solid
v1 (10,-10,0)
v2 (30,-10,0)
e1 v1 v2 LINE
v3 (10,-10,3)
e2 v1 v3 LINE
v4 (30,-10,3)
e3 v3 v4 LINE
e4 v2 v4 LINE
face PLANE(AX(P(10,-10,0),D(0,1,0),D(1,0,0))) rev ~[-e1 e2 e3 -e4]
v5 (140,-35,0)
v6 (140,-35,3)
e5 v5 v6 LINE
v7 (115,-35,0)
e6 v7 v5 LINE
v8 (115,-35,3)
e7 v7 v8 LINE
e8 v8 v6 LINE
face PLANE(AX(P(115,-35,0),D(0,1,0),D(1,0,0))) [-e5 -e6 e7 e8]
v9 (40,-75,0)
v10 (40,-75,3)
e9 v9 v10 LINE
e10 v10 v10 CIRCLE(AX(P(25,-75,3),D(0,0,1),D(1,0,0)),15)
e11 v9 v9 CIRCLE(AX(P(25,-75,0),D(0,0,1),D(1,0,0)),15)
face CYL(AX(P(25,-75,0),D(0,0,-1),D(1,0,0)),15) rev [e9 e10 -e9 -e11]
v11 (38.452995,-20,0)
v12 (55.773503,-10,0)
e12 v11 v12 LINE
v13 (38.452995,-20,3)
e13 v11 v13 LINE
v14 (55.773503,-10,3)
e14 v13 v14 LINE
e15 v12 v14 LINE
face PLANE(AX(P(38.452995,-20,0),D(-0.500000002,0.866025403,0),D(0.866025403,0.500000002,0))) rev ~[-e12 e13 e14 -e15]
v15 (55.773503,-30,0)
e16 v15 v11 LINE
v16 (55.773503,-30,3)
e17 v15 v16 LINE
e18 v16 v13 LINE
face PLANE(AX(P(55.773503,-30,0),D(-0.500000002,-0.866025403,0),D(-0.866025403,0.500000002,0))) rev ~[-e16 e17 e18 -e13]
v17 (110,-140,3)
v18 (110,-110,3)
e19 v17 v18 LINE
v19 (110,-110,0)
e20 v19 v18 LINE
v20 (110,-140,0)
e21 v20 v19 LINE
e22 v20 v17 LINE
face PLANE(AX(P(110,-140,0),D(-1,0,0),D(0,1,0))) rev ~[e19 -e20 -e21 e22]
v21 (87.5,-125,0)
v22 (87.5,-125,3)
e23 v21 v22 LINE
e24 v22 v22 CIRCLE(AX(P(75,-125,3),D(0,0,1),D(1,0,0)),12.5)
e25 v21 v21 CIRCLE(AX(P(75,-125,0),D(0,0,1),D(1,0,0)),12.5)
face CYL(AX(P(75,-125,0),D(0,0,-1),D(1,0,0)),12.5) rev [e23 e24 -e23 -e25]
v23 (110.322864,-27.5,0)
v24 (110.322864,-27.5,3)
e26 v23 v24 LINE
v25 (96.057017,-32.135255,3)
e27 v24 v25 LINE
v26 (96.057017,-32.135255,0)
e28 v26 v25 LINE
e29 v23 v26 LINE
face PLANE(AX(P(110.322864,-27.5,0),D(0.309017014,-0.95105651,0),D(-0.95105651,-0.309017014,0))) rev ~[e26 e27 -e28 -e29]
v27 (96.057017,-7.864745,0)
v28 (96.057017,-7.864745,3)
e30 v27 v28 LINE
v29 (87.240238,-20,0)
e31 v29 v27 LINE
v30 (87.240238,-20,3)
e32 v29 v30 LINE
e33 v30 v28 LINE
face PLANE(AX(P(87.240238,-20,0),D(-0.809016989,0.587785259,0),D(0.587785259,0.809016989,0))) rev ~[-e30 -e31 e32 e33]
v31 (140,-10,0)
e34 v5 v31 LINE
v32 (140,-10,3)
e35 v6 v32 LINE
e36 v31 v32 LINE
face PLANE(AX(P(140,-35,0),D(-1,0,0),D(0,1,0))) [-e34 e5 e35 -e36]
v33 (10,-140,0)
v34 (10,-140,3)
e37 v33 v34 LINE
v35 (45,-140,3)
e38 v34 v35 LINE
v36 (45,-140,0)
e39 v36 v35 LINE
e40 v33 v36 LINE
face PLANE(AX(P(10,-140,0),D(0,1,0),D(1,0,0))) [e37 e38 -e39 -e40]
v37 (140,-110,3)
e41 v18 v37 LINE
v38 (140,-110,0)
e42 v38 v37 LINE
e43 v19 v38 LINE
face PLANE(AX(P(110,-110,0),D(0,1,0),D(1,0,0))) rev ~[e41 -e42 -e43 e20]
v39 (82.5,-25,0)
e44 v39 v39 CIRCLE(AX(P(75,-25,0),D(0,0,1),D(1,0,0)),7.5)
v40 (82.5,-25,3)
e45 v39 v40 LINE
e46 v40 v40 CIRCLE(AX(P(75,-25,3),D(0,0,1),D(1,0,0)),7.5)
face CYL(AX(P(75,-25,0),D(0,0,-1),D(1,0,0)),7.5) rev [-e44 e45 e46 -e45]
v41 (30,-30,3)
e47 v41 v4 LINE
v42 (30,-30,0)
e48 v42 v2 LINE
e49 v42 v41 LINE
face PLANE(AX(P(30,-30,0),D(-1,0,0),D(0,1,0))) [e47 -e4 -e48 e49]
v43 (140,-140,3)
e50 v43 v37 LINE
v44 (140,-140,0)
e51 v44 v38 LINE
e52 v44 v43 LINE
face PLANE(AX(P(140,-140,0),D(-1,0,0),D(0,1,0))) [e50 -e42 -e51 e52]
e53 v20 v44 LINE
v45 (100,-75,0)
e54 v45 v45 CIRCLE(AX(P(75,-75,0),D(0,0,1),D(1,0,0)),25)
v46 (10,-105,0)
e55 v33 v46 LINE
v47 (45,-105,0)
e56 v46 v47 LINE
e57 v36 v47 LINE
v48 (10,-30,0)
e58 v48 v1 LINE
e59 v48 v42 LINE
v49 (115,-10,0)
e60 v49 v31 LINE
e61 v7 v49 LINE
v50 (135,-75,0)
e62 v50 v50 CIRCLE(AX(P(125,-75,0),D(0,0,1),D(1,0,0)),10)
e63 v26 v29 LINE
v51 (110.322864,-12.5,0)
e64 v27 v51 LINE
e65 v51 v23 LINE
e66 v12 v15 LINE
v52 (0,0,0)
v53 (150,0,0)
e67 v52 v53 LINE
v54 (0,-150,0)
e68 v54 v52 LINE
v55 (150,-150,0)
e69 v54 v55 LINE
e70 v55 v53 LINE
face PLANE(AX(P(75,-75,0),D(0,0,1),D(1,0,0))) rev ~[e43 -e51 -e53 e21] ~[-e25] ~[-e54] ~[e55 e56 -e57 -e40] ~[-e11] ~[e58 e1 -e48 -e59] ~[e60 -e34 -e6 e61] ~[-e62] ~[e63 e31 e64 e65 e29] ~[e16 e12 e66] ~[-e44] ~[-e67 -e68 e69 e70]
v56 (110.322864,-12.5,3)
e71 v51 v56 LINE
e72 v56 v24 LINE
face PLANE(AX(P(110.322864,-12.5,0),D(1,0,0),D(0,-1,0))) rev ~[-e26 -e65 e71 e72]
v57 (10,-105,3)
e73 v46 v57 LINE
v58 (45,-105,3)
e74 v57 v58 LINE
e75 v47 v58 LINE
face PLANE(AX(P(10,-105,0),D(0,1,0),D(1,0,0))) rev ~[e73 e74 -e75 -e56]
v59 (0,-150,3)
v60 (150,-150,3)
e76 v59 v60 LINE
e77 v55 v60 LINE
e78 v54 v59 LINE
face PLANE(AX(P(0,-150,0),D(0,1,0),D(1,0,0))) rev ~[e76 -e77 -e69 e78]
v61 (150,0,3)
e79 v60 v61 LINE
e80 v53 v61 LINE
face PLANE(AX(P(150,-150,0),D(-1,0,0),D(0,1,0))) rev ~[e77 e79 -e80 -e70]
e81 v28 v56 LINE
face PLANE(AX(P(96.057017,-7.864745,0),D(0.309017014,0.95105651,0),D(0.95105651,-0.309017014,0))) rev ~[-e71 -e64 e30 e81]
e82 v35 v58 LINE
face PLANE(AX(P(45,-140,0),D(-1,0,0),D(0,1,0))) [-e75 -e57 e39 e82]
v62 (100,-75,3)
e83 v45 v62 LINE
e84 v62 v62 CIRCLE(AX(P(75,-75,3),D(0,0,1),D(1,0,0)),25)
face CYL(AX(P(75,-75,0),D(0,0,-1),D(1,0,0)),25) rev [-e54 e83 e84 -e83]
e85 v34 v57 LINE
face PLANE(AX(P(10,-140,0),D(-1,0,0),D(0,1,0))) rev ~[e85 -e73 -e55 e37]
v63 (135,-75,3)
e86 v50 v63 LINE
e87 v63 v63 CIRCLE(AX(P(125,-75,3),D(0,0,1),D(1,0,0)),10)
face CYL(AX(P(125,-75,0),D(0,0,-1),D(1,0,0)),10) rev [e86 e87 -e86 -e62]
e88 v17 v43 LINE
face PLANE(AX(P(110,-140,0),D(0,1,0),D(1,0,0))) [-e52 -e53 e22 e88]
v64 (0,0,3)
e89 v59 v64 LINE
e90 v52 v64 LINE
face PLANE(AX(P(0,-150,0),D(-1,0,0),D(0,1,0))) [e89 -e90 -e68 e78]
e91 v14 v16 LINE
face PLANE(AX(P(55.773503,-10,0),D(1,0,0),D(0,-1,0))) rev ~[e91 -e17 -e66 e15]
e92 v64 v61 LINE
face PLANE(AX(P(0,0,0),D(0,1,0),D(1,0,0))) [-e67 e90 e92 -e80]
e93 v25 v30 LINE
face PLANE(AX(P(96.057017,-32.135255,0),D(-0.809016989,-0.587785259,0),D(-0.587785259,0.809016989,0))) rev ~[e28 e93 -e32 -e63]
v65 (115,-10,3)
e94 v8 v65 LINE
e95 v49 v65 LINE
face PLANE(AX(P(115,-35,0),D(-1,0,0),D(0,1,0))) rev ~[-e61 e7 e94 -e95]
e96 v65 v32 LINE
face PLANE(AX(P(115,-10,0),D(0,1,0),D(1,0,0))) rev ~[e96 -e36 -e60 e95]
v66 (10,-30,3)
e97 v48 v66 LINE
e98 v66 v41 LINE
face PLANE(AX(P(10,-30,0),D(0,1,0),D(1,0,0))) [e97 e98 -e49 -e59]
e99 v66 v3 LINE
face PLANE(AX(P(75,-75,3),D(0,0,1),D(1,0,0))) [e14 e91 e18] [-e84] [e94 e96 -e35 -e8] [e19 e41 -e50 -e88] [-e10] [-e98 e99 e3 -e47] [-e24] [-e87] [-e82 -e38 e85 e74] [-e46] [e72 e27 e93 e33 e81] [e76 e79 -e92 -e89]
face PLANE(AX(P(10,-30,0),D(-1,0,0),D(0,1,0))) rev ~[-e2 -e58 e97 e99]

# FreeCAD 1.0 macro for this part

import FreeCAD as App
import Part
import Sketcher

V = App.Vector
Q = App.Units.Quantity

doc = App.newDocument("Part")
params = doc.addObject("Spreadsheet::Sheet", "Params")
for row, (alias, value) in enumerate([
    ("sketch1_diameter", "30 mm"),
    ("sketch1_diameter2", "25 mm"),
    ("sketch1_diameter3", "50 mm"),
    ("sketch1_diameter4", "20 mm"),
    ("sketch1_diameter5", "15 mm"),
    ("pad1_length", "3 mm"),
], start=1):
    params.set(f"A{row}", alias)
    params.set(f"B{row}", "=" + value)
    params.setAlias(f"B{row}", alias)

body = doc.addObject("PartDesign::Body", "Body")

# Sketch on XY plane
sketch1 = doc.addObject("Sketcher::SketchObject", "Sketch")
body.addObject(sketch1)
sketch1.AttachmentSupport = (doc.XY_Plane, [""])
sketch1.MapMode = "FlatFace"
sketch1.addGeometry(Part.LineSegment(V(0, 0, 0), V(0, -150, 0)), False)
sketch1.addGeometry(Part.LineSegment(V(0, -150, 0), V(150, -150, 0)), False)
sketch1.addGeometry(Part.LineSegment(V(150, -150, 0), V(150, 0, 0)), False)
sketch1.addGeometry(Part.LineSegment(V(150, 0, 0), V(0, 0, 0)), False)
sketch1.addGeometry(Part.LineSegment(V(45, -140, 0), V(10, -140, 0)), False)
sketch1.addGeometry(Part.LineSegment(V(10, -140, 0), V(10, -105, 0)), False)
sketch1.addGeometry(Part.LineSegment(V(10, -105, 0), V(45, -105, 0)), False)
sketch1.addGeometry(Part.LineSegment(V(45, -105, 0), V(45, -140, 0)), False)
sketch1.addGeometry(Part.Circle(V(25, -75, 0), V(0, 0, 1), 15), False)
sketch1.addGeometry(Part.Circle(V(75, -125, 0), V(0, 0, 1), 12), False)
sketch1.addGeometry(Part.LineSegment(V(140, -140, 0), V(110, -140, 0)), False)
sketch1.addGeometry(Part.LineSegment(V(110, -140, 0), V(110, -110, 0)), False)
sketch1.addGeometry(Part.LineSegment(V(110, -110, 0), V(140, -110, 0)), False)
sketch1.addGeometry(Part.LineSegment(V(140, -110, 0), V(140, -140, 0)), False)
sketch1.addGeometry(Part.Circle(V(75, -75, 0), V(0, 0, 1), 25), False)
sketch1.addGeometry(Part.Circle(V(125, -75, 0), V(0, 0, 1), 10), False)
sketch1.addGeometry(Part.LineSegment(V(30, -30, 0), V(10, -30, 0)), False)
sketch1.addGeometry(Part.LineSegment(V(10, -30, 0), V(10, -10, 0)), False)
sketch1.addGeometry(Part.LineSegment(V(10, -10, 0), V(30, -10, 0)), False)
sketch1.addGeometry(Part.LineSegment(V(30, -10, 0), V(30, -30, 0)), False)
sketch1.addGeometry(Part.LineSegment(V(56, -30, 0), V(38, -20, 0)), False)
sketch1.addGeometry(Part.LineSegment(V(38, -20, 0), V(56, -10, 0)), False)
sketch1.addGeometry(Part.LineSegment(V(56, -10, 0), V(56, -30, 0)), False)
sketch1.addGeometry(Part.Circle(V(75, -25, 0), V(0, 0, 1), 8), False)
sketch1.addGeometry(Part.LineSegment(V(87, -20, 0), V(96, -8, 0)), False)
sketch1.addGeometry(Part.LineSegment(V(96, -8, 0), V(110, -12, 0)), False)
sketch1.addGeometry(Part.LineSegment(V(110, -12, 0), V(110, -28, 0)), False)
sketch1.addGeometry(Part.LineSegment(V(110, -28, 0), V(96, -32, 0)), False)
sketch1.addGeometry(Part.LineSegment(V(96, -32, 0), V(87, -20, 0)), False)
sketch1.addGeometry(Part.LineSegment(V(140, -35, 0), V(115, -35, 0)), False)
sketch1.addGeometry(Part.LineSegment(V(115, -35, 0), V(115, -10, 0)), False)
sketch1.addGeometry(Part.LineSegment(V(115, -10, 0), V(140, -10, 0)), False)
sketch1.addGeometry(Part.LineSegment(V(140, -10, 0), V(140, -35, 0)), False)
sketch1.addConstraint(Sketcher.Constraint("Coincident", 0, 2, 1, 1))
sketch1.addConstraint(Sketcher.Constraint("Coincident", 1, 2, 2, 1))
sketch1.addConstraint(Sketcher.Constraint("Coincident", 2, 2, 3, 1))
sketch1.addConstraint(Sketcher.Constraint("Coincident", 3, 2, 0, 1))
sketch1.addConstraint(Sketcher.Constraint("Coincident", 4, 2, 5, 1))
sketch1.addConstraint(Sketcher.Constraint("Coincident", 5, 2, 6, 1))
sketch1.addConstraint(Sketcher.Constraint("Coincident", 6, 2, 7, 1))
sketch1.addConstraint(Sketcher.Constraint("Coincident", 7, 2, 4, 1))
sketch1.addConstraint(Sketcher.Constraint("Coincident", 10, 2, 11, 1))
sketch1.addConstraint(Sketcher.Constraint("Coincident", 11, 2, 12, 1))
sketch1.addConstraint(Sketcher.Constraint("Coincident", 12, 2, 13, 1))
sketch1.addConstraint(Sketcher.Constraint("Coincident", 13, 2, 10, 1))
sketch1.addConstraint(Sketcher.Constraint("Coincident", 16, 2, 17, 1))
sketch1.addConstraint(Sketcher.Constraint("Coincident", 17, 2, 18, 1))
sketch1.addConstraint(Sketcher.Constraint("Coincident", 18, 2, 19, 1))
sketch1.addConstraint(Sketcher.Constraint("Coincident", 19, 2, 16, 1))
sketch1.addConstraint(Sketcher.Constraint("Coincident", 20, 2, 21, 1))
sketch1.addConstraint(Sketcher.Constraint("Coincident", 21, 2, 22, 1))
sketch1.addConstraint(Sketcher.Constraint("Coincident", 22, 2, 20, 1))
sketch1.addConstraint(Sketcher.Constraint("Coincident", 24, 2, 25, 1))
sketch1.addConstraint(Sketcher.Constraint("Coincident", 25, 2, 26, 1))
sketch1.addConstraint(Sketcher.Constraint("Coincident", 26, 2, 27, 1))
sketch1.addConstraint(Sketcher.Constraint("Coincident", 27, 2, 28, 1))
sketch1.addConstraint(Sketcher.Constraint("Coincident", 28, 2, 24, 1))
sketch1.addConstraint(Sketcher.Constraint("Coincident", 29, 2, 30, 1))
sketch1.addConstraint(Sketcher.Constraint("Coincident", 30, 2, 31, 1))
sketch1.addConstraint(Sketcher.Constraint("Coincident", 31, 2, 32, 1))
sketch1.addConstraint(Sketcher.Constraint("Coincident", 32, 2, 29, 1))
sketch1.addConstraint(Sketcher.Constraint("Vertical", 0))
sketch1.addConstraint(Sketcher.Constraint("Horizontal", 1))
sketch1.addConstraint(Sketcher.Constraint("Vertical", 2))
sketch1.addConstraint(Sketcher.Constraint("Horizontal", 3))
sketch1.addConstraint(Sketcher.Constraint("Horizontal", 4))
sketch1.addConstraint(Sketcher.Constraint("Vertical", 5))
sketch1.addConstraint(Sketcher.Constraint("Horizontal", 6))
sketch1.addConstraint(Sketcher.Constraint("Vertical", 7))
sketch1.addConstraint(Sketcher.Constraint("Horizontal", 10))
sketch1.addConstraint(Sketcher.Constraint("Vertical", 11))
sketch1.addConstraint(Sketcher.Constraint("Horizontal", 12))
sketch1.addConstraint(Sketcher.Constraint("Vertical", 13))
sketch1.addConstraint(Sketcher.Constraint("Horizontal", 16))
sketch1.addConstraint(Sketcher.Constraint("Vertical", 17))
sketch1.addConstraint(Sketcher.Constraint("Horizontal", 18))
sketch1.addConstraint(Sketcher.Constraint("Vertical", 19))
sketch1.addConstraint(Sketcher.Constraint("Vertical", 22))
sketch1.addConstraint(Sketcher.Constraint("Vertical", 26))
sketch1.addConstraint(Sketcher.Constraint("Horizontal", 29))
sketch1.addConstraint(Sketcher.Constraint("Vertical", 30))
sketch1.addConstraint(Sketcher.Constraint("Horizontal", 31))
sketch1.addConstraint(Sketcher.Constraint("Vertical", 32))
sketch1.addConstraint(Sketcher.Constraint("Coincident", 3, 2, -1, 1))
sketch1.addConstraint(Sketcher.Constraint("Horizontal", 8, 3, 14, 3))
sketch1.addConstraint(Sketcher.Constraint("Horizontal", 14, 3, 15, 3))
sketch1.addConstraint(Sketcher.Constraint("Horizontal", 7, 2, 10, 2))
sketch1.addConstraint(Sketcher.Constraint("Horizontal", 18, 2, 21, 2))
sketch1.addConstraint(Sketcher.Constraint("Horizontal", 19, 2, 22, 2))
sketch1.addConstraint(Sketcher.Constraint("Horizontal", 20, 2, 28, 2))
sketch1.addConstraint(Sketcher.Constraint("Horizontal", 21, 2, 30, 2))
sketch1.addConstraint(Sketcher.Constraint("Vertical", 9, 3, 14, 3))
sketch1.addConstraint(Sketcher.Constraint("Vertical", 14, 3, 23, 3))
sketch1.addConstraint(Sketcher.Constraint("Vertical", 5, 2, 16, 2))
sketch1.addConstraint(Sketcher.Constraint("Vertical", 24, 2, 27, 2))
sketch1.addConstraint(Sketcher.Constraint("Vertical", 13, 2, 31, 2))
sketch1.addConstraint(Sketcher.Constraint("Equal", 3, 0))
sketch1.addConstraint(Sketcher.Constraint("Equal", 6, 5))
sketch1.addConstraint(Sketcher.Constraint("Equal", 12, 11))
sketch1.addConstraint(Sketcher.Constraint("Equal", 18, 17))
sketch1.addConstraint(Sketcher.Constraint("Equal", 31, 30))
sketch1.addConstraint(Sketcher.Constraint("Equal", 20, 21))
sketch1.addConstraint(Sketcher.Constraint("Equal", 24, 25))
sketch1.addConstraint(Sketcher.Constraint("Equal", 25, 27))
sketch1.addConstraint(Sketcher.Constraint("Equal", 27, 28))
sketch1.addConstraint(Sketcher.Constraint("Diameter", 8, Q("30 mm")))
sketch1.addConstraint(Sketcher.Constraint("Diameter", 9, Q("25 mm")))
sketch1.addConstraint(Sketcher.Constraint("Diameter", 14, Q("50 mm")))
sketch1.addConstraint(Sketcher.Constraint("Diameter", 15, Q("20 mm")))
sketch1.addConstraint(Sketcher.Constraint("Diameter", 23, Q("15 mm")))
sketch1.addConstraint(Sketcher.Constraint("DistanceX", 1, 1, 1, 2, Q("150 mm")))
sketch1.addConstraint(Sketcher.Constraint("DistanceX", 4, 2, 4, 1, Q("35 mm")))
sketch1.addConstraint(Sketcher.Constraint("DistanceX", 10, 2, 10, 1, Q("30 mm")))
sketch1.addConstraint(Sketcher.Constraint("DistanceX", 16, 2, 16, 1, Q("20 mm")))
sketch1.addConstraint(Sketcher.Constraint("DistanceX", 29, 2, 29, 1, Q("25 mm")))
sketch1.addConstraint(Sketcher.Constraint("DistanceY", 26, 2, 26, 1, Q("15 mm")))
sketch1.addConstraint(Sketcher.Constraint("Angle", 20, Q("150 deg")))
sketch1.addConstraint(Sketcher.Constraint("Angle", 24, Q("54 deg")))
sketch1.addConstraint(Sketcher.Constraint("Angle", 25, Q("-18.000001 deg")))
sketch1.addConstraint(Sketcher.Constraint("DistanceX", -1, 1, 8, 3, Q("25 mm")))
sketch1.addConstraint(Sketcher.Constraint("DistanceY", 8, 3, -1, 1, Q("75 mm")))
sketch1.addConstraint(Sketcher.Constraint("DistanceX", -1, 1, 9, 3, Q("75 mm")))
sketch1.addConstraint(Sketcher.Constraint("DistanceY", 9, 3, -1, 1, Q("125 mm")))
sketch1.addConstraint(Sketcher.Constraint("DistanceX", -1, 1, 15, 3, Q("125 mm")))
sketch1.addConstraint(Sketcher.Constraint("DistanceY", 23, 3, -1, 1, Q("25 mm")))
sketch1.addConstraint(Sketcher.Constraint("DistanceX", -1, 1, 4, 2, Q("10 mm")))
sketch1.addConstraint(Sketcher.Constraint("DistanceY", 4, 2, -1, 1, Q("140 mm")))
sketch1.addConstraint(Sketcher.Constraint("DistanceX", -1, 1, 10, 2, Q("110 mm")))
sketch1.addConstraint(Sketcher.Constraint("DistanceY", 16, 2, -1, 1, Q("30 mm")))
sketch1.addConstraint(Sketcher.Constraint("DistanceX", -1, 1, 28, 2, Q("87.240238 mm")))
sketch1.addConstraint(Sketcher.Constraint("DistanceX", 21, 2, 25, 2, Q("54.549361 mm")))
sketch1.setExpression("Constraints[72]", "Params.sketch1_diameter")
sketch1.setExpression("Constraints[73]", "Params.sketch1_diameter2")
sketch1.setExpression("Constraints[74]", "Params.sketch1_diameter3")
sketch1.setExpression("Constraints[75]", "Params.sketch1_diameter4")
sketch1.setExpression("Constraints[76]", "Params.sketch1_diameter5")
pad1 = doc.addObject("PartDesign::Pad", "Pad")
body.addObject(pad1)
pad1.Profile = sketch1
pad1.setExpression("Length", "Params.pad1_length")

doc.recompute()
